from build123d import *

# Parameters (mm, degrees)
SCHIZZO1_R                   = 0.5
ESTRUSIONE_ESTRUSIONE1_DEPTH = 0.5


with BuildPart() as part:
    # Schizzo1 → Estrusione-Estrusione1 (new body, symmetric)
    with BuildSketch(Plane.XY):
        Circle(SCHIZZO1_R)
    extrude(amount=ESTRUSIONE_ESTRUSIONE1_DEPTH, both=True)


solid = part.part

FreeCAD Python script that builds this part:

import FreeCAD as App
import Part
import Sketcher

V = App.Vector
Q = App.Units.Quantity

doc = App.newDocument("Part")
params = doc.addObject("Spreadsheet::Sheet", "Params")
for row, (alias, value) in enumerate([
    ("sketch1_diameter", "1 mm"),
    ("pad1_length", "1 mm"),
], start=1):
    params.set(f"A{row}", alias)
    params.set(f"B{row}", "=" + value)
    params.setAlias(f"B{row}", alias)

body = doc.addObject("PartDesign::Body", "Body")

# Sketch on XY plane
sketch1 = doc.addObject("Sketcher::SketchObject", "Sketch")
body.addObject(sketch1)
sketch1.AttachmentSupport = (doc.XY_Plane, [""])
sketch1.MapMode = "FlatFace"
sketch1.addGeometry(Part.Circle(V(0, 0, 0), V(0, 0, 1), 0.5), False)
sketch1.addConstraint([
    Sketcher.Constraint("Coincident", 0, 3, -1, 1),
    Sketcher.Constraint("Diameter", 0, Q("1 mm")),
])
sketch1.setExpression("Constraints[1]", "Params.sketch1_diameter")
pad1 = doc.addObject("PartDesign::Pad", "Pad")
body.addObject(pad1)
pad1.Profile = sketch1
pad1.setExpression("Length", "Params.pad1_length")
pad1.Midplane = True

doc.recompute()
